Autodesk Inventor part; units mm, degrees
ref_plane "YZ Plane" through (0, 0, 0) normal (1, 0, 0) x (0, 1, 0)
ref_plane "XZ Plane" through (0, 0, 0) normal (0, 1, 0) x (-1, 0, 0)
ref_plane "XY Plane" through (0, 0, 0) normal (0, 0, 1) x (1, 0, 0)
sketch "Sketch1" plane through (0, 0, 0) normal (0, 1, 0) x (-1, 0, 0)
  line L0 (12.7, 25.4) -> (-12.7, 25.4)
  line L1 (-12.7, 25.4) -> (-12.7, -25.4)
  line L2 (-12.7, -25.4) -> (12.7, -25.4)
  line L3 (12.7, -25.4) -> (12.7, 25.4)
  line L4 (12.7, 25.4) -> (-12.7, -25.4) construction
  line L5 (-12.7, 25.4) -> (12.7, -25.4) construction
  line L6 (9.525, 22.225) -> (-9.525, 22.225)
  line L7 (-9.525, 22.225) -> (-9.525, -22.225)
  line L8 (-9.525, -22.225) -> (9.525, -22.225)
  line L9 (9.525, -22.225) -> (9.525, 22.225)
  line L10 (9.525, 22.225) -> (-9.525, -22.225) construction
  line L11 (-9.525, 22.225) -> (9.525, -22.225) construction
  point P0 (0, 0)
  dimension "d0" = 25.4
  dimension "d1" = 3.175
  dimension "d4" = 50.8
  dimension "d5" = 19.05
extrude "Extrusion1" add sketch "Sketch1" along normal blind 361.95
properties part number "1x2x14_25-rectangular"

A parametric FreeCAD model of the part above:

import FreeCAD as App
import Part
import Sketcher

V = App.Vector
Q = App.Units.Quantity


def add_polygon(sketch, points):
    """Adds a closed chain of lines whose ends are joined by coincident constraints."""
    first, n = sketch.GeometryCount, len(points)
    for a, b in zip(points, points[1:] + points[:1]):
        sketch.addGeometry(Part.LineSegment(App.Vector(*a, 0), App.Vector(*b, 0)), False)
    for i in range(n):
        sketch.addConstraint(Sketcher.Constraint("Coincident", first + i, 2, first + (i + 1) % n, 1))

doc = App.newDocument("Part")
params = doc.addObject("Spreadsheet::Sheet", "Params")
for row, (alias, value) in enumerate([
    ("sketch1_width", "1 in"),
    ("sketch1_height", "2 in"),
    ("sketch1_width2", "0.75 in"),
    ("pad1_length", "14.25 in"),
], start=1):
    params.set(f"A{row}", alias)
    params.set(f"B{row}", "=" + value)
    params.setAlias(f"B{row}", alias)

body = doc.addObject("PartDesign::Body", "Body")

# Sketch on XZ plane
sketch1 = body.newObject("Sketcher::SketchObject", "Sketch")
sketch1.AttachmentSupport = (doc.getObject("XZ_Plane"), [""])
sketch1.MapMode = "FlatFace"
add_polygon(sketch1, [(-13, -25), (-13, 25), (13, 25), (13, -25)])  # lines 0-3
add_polygon(sketch1, [(10, 22), (-10, 22), (-10, -22), (10, -22)])  # lines 4-7
sketch1.addConstraint([
    Sketcher.Constraint("Vertical", 0),
    Sketcher.Constraint("Horizontal", 1),
    Sketcher.Constraint("Vertical", 2),
    Sketcher.Constraint("Horizontal", 3),
    Sketcher.Constraint("Horizontal", 4),
    Sketcher.Constraint("Vertical", 5),
    Sketcher.Constraint("Horizontal", 6),
    Sketcher.Constraint("Vertical", 7),
    Sketcher.Constraint("Symmetric", 0, 2, 2, 2, -1, 1),
    Sketcher.Constraint("Symmetric", 4, 2, 6, 2, -1, 1),
    Sketcher.Constraint("DistanceX", 1, 1, 1, 2, Q("1 in")),
    Sketcher.Constraint("DistanceY", 0, 1, 0, 2, Q("2 in")),
    Sketcher.Constraint("DistanceX", 4, 2, 4, 1, Q("0.75 in")),
    Sketcher.Constraint("DistanceY", 4, 2, 0, 2, Q("0.125 in")),
])
sketch1.setExpression("Constraints[18]", "Params.sketch1_width")
sketch1.setExpression("Constraints[19]", "Params.sketch1_height")
sketch1.setExpression("Constraints[20]", "Params.sketch1_width2")
pad1 = body.newObject("PartDesign::Pad", "Pad")
pad1.Profile = sketch1
pad1.setExpression("Length", "Params.pad1_length")
pad1.Reversed = True

doc.recompute()
